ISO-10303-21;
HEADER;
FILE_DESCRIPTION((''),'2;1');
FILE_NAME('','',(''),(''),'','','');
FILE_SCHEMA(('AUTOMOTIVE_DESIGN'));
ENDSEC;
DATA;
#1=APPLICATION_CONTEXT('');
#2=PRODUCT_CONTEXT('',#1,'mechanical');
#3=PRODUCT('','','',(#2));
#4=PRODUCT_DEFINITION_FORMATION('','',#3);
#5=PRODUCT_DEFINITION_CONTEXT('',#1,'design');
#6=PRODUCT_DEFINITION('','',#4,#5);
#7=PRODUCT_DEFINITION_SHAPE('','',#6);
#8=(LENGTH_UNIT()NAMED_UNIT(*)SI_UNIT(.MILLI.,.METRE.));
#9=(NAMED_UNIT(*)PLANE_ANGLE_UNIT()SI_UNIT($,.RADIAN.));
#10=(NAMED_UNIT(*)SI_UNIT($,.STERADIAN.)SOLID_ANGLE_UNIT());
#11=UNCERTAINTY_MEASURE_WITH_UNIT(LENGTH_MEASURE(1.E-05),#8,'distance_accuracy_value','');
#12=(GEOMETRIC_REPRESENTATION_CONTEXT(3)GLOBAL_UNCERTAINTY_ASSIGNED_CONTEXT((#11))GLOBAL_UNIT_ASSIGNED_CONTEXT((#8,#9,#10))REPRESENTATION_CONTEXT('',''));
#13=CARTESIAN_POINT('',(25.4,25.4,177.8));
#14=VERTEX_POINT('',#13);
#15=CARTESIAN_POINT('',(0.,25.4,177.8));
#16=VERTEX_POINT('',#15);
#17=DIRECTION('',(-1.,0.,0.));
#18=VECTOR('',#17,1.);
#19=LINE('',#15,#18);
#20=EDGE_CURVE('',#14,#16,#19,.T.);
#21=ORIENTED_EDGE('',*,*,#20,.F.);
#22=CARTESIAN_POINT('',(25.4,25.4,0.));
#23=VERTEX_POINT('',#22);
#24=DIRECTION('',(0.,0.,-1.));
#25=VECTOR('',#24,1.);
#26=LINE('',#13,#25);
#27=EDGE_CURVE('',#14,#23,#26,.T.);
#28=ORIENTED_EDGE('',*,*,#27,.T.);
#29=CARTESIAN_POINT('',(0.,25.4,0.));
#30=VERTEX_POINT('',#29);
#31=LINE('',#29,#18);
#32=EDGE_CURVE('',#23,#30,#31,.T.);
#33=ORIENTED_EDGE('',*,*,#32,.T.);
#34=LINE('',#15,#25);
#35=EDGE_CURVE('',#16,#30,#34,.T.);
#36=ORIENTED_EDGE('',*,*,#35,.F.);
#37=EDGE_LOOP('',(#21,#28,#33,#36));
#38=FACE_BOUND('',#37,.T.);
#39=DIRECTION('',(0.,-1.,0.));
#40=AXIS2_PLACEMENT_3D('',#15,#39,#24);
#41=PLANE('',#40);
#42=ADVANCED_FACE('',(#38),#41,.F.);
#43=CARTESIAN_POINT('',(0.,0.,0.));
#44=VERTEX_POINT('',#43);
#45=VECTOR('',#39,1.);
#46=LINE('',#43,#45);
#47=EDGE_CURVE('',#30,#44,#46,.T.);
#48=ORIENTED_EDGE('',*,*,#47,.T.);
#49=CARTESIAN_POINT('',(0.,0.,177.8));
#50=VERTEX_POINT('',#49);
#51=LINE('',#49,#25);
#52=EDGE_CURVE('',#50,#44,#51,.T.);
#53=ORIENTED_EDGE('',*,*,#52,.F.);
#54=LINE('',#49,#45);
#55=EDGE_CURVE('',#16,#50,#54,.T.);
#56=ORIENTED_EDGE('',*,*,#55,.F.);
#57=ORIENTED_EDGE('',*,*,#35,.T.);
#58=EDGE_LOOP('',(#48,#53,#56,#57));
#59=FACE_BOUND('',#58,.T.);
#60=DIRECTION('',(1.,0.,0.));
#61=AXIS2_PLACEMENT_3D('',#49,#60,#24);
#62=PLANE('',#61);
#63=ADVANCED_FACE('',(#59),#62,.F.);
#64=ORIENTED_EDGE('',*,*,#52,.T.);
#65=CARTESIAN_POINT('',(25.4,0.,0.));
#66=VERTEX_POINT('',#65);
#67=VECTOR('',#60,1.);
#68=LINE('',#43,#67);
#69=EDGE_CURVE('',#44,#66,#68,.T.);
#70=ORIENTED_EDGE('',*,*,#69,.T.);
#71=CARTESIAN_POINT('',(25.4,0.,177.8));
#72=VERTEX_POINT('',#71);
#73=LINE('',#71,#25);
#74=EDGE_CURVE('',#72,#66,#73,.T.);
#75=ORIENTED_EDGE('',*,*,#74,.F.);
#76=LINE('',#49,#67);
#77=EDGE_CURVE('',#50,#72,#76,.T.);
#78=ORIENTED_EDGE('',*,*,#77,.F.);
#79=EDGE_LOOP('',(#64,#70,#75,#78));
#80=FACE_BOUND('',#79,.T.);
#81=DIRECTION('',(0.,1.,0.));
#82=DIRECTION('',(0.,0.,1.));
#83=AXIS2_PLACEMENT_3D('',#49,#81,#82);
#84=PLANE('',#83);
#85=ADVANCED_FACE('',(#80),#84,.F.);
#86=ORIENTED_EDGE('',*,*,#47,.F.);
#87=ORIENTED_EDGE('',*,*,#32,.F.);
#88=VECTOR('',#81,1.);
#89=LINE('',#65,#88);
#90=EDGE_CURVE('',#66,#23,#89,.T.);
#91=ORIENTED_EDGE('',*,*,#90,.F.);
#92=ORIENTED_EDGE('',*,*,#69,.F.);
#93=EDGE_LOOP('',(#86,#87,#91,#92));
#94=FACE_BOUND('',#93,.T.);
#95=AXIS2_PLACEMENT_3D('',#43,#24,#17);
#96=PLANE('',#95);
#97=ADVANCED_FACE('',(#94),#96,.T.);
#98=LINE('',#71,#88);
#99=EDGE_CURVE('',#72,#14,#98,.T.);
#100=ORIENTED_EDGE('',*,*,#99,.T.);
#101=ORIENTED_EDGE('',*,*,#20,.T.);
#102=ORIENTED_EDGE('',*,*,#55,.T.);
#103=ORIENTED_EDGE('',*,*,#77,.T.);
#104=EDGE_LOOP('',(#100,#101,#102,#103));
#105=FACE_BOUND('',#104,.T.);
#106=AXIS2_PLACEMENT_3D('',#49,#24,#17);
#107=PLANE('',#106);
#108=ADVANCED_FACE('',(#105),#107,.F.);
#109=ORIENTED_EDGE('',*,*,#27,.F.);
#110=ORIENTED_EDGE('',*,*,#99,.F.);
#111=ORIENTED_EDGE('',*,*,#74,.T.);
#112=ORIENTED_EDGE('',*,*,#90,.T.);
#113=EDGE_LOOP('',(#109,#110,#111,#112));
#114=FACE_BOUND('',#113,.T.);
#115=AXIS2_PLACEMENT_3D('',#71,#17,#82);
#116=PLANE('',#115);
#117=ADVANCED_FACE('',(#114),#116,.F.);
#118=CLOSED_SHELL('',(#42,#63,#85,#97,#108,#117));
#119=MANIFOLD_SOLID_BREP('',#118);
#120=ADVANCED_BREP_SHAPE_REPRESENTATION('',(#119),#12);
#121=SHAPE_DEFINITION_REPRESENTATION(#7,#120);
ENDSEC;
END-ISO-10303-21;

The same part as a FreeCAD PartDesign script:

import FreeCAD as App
import Part
import Sketcher

V = App.Vector
Q = App.Units.Quantity

doc = App.newDocument("Part")
body = doc.addObject("PartDesign::Body", "Body")

# Sketch on XY plane
sketch1 = body.newObject("Sketcher::SketchObject", "Sketch")
sketch1.AttachmentSupport = (doc.getObject("XY_Plane"), [""])
sketch1.MapMode = "FlatFace"
sketch1.addGeometry([
    Part.LineSegment(V(0, 25.4, 0), V(0, 0, 0)),
    Part.LineSegment(V(0, 0, 0), V(25.4, 0, 0)),
    Part.LineSegment(V(25.4, 0, 0), V(25.4, 25.4, 0)),
    Part.LineSegment(V(25.4, 25.4, 0), V(0, 25.4, 0)),
], False)
sketch1.addConstraint([
    Sketcher.Constraint("Coincident", 0, 2, 1, 1),
    Sketcher.Constraint("Coincident", 1, 2, 2, 1),
    Sketcher.Constraint("Coincident", 2, 2, 3, 1),
    Sketcher.Constraint("Coincident", 3, 2, 0, 1),
    Sketcher.Constraint("Vertical", 0),
    Sketcher.Constraint("Horizontal", 1),
    Sketcher.Constraint("Vertical", 2),
    Sketcher.Constraint("Horizontal", 3),
    Sketcher.Constraint("Coincident", 0, 2, -1, 1),
    Sketcher.Constraint("Equal", 3, 0),
    Sketcher.Constraint("DistanceX", 1, 1, 1, 2, Q("1 in")),
])
pad1 = body.newObject("PartDesign::Pad", "Pad")
pad1.Profile = sketch1
pad1.Length = Q("7 in")

doc.recompute()
